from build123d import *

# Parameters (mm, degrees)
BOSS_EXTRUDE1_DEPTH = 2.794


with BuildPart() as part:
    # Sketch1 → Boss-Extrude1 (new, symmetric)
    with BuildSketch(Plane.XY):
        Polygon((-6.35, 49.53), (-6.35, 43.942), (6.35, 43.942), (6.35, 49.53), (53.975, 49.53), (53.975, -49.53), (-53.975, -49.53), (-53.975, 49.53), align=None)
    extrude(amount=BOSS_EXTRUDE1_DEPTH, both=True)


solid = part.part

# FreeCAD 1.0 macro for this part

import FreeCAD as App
import Part
import Sketcher
from FreeCAD import Vector
Q = App.Units.Quantity


def add_polygon(sketch, points):
    """Adds a closed chain of lines whose ends are joined by coincident constraints."""
    first, n = sketch.GeometryCount, len(points)
    for a, b in zip(points, points[1:] + points[:1]):
        sketch.addGeometry(Part.LineSegment(App.Vector(*a, 0), App.Vector(*b, 0)), False)
    for i in range(n):
        sketch.addConstraint(Sketcher.Constraint("Coincident", first + i, 2, first + (i + 1) % n, 1))

doc = App.newDocument("Part")
params = doc.addObject("Spreadsheet::Sheet", "Params")
for row, (alias, value) in enumerate([
    ("sketch1_width", "0.5 in"),
    ("sketch1_height", "3.9 in"),
    ("sketch1_width2", "4.25 in"),
    ("sketch1_height2", "0.22 in"),
    ("pad1_length", "0.22 in"),
], start=1):
    params.set(f"A{row}", alias)
    params.set(f"B{row}", "=" + value)
    params.setAlias(f"B{row}", alias)

body = doc.addObject("PartDesign::Body", "Body")

# Sketch on XY plane
sketch1 = doc.addObject("Sketcher::SketchObject", "Sketch")
body.addObject(sketch1)
sketch1.AttachmentSupport = (doc.XY_Plane, [""])
sketch1.MapMode = "FlatFace"
add_polygon(sketch1, [(-6.35, 43.942), (-6.35, 49.53), (-53.975, 49.53), (-53.975, -49.53), (53.975, -49.53), (53.975, 49.53), (6.35, 49.53), (6.35, 43.942)])  # lines 0-7
sketch1.addConstraint(Sketcher.Constraint("Vertical", 0))
sketch1.addConstraint(Sketcher.Constraint("Horizontal", 1))
sketch1.addConstraint(Sketcher.Constraint("Vertical", 2))
sketch1.addConstraint(Sketcher.Constraint("Horizontal", 3))
sketch1.addConstraint(Sketcher.Constraint("Vertical", 4))
sketch1.addConstraint(Sketcher.Constraint("Horizontal", 5))
sketch1.addConstraint(Sketcher.Constraint("Vertical", 6))
sketch1.addConstraint(Sketcher.Constraint("Horizontal", 7))
sketch1.addConstraint(Sketcher.Constraint("Symmetric", 1, 2, 3, 2, -1, 1))
sketch1.addConstraint(Sketcher.Constraint("Symmetric", 0, 2, 5, 2, -2))
sketch1.addConstraint(Sketcher.Constraint("DistanceX", 7, 2, 7, 1, Q("0.5 in")))
sketch1.addConstraint(Sketcher.Constraint("DistanceY", 2, 2, 2, 1, Q("3.9 in")))
sketch1.addConstraint(Sketcher.Constraint("DistanceX", 3, 1, 3, 2, Q("4.25 in")))
sketch1.addConstraint(Sketcher.Constraint("DistanceY", 0, 1, 0, 2, Q("0.22 in")))
sketch1.setExpression("Constraints[18]", "Params.sketch1_width")
sketch1.setExpression("Constraints[19]", "Params.sketch1_height")
sketch1.setExpression("Constraints[20]", "Params.sketch1_width2")
sketch1.setExpression("Constraints[21]", "Params.sketch1_height2")
pad1 = doc.addObject("PartDesign::Pad", "Pad")
body.addObject(pad1)
pad1.Profile = sketch1
pad1.setExpression("Length", "Params.pad1_length")
pad1.Midplane = True

doc.recompute()
